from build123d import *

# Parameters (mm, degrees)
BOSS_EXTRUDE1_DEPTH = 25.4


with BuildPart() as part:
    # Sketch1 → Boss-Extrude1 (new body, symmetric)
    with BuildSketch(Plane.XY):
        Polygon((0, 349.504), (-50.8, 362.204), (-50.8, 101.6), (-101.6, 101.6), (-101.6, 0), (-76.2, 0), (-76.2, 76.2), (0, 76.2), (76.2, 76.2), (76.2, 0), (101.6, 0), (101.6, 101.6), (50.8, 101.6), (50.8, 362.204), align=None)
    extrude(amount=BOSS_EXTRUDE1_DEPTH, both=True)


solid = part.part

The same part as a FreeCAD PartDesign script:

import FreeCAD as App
import Part
import Sketcher
Q = App.Units.Quantity

doc = App.newDocument("Part")
body = doc.addObject("PartDesign::Body", "Body")

# Sketch on XY plane
sketch1 = body.newObject("Sketcher::SketchObject", "Sketch")
sketch1.AttachmentSupport = (doc.getObject("XY_Plane"), [""])
sketch1.MapMode = "FlatFace"
sketch1.addGeometry([
    Part.LineSegment(App.Vector(0, 350, 0), App.Vector(-51, 362, 0)),  # 0
    Part.LineSegment(App.Vector(-51, 362, 0), App.Vector(-51, 102, 0)),  # 1
    Part.LineSegment(App.Vector(-51, 102, 0), App.Vector(-102, 102, 0)),  # 2
    Part.LineSegment(App.Vector(-102, 102, 0), App.Vector(-102, 0, 0)),  # 3
    Part.LineSegment(App.Vector(-102, 0, 0), App.Vector(-76, 0, 0)),  # 4
    Part.LineSegment(App.Vector(-76, 0, 0), App.Vector(-76, 76, 0)),  # 5
    Part.LineSegment(App.Vector(-76, 76, 0), App.Vector(76, 76, 0)),  # 6
    Part.LineSegment(App.Vector(76, 76, 0), App.Vector(76, 0, 0)),  # 7
    Part.LineSegment(App.Vector(76, 0, 0), App.Vector(102, 0, 0)),  # 8
    Part.LineSegment(App.Vector(102, 0, 0), App.Vector(102, 102, 0)),  # 9
    Part.LineSegment(App.Vector(102, 102, 0), App.Vector(51, 102, 0)),  # 10
    Part.LineSegment(App.Vector(51, 102, 0), App.Vector(51, 362, 0)),  # 11
    Part.LineSegment(App.Vector(51, 362, 0), App.Vector(0, 350, 0)),  # 12
], False)
sketch1.addConstraint([
    Sketcher.Constraint("Coincident", 0, 2, 1, 1),
    Sketcher.Constraint("Coincident", 1, 2, 2, 1),
    Sketcher.Constraint("Coincident", 2, 2, 3, 1),
    Sketcher.Constraint("Coincident", 3, 2, 4, 1),
    Sketcher.Constraint("Coincident", 4, 2, 5, 1),
    Sketcher.Constraint("Coincident", 5, 2, 6, 1),
    Sketcher.Constraint("Coincident", 6, 2, 7, 1),
    Sketcher.Constraint("Coincident", 7, 2, 8, 1),
    Sketcher.Constraint("Coincident", 8, 2, 9, 1),
    Sketcher.Constraint("Coincident", 9, 2, 10, 1),
    Sketcher.Constraint("Coincident", 10, 2, 11, 1),
    Sketcher.Constraint("Coincident", 11, 2, 12, 1),
    Sketcher.Constraint("Coincident", 12, 2, 0, 1),
    Sketcher.Constraint("Vertical", 1),
    Sketcher.Constraint("Horizontal", 2),
    Sketcher.Constraint("Vertical", 3),
    Sketcher.Constraint("Horizontal", 4),
    Sketcher.Constraint("Vertical", 5),
    Sketcher.Constraint("Horizontal", 6),
    Sketcher.Constraint("Vertical", 7),
    Sketcher.Constraint("Horizontal", 8),
    Sketcher.Constraint("Vertical", 9),
    Sketcher.Constraint("Horizontal", 10),
    Sketcher.Constraint("Vertical", 11),
    Sketcher.Constraint("Symmetric", 4, 2, 7, 2, -1, 1),
    Sketcher.Constraint("Symmetric", 3, 2, 8, 2, -2),
    Sketcher.Constraint("Symmetric", 1, 2, 10, 2, -2),
    Sketcher.Constraint("PointOnObject", 12, 2, -2),
    Sketcher.Constraint("Horizontal", 0, 2, 11, 2),
    Sketcher.Constraint("DistanceX", 2, 2, 2, 1, Q("2 in")),
    Sketcher.Constraint("DistanceX", 4, 1, 4, 2, Q("1 in")),
    Sketcher.Constraint("DistanceX", 6, 1, 6, 2, Q("6 in")),
    Sketcher.Constraint("DistanceY", 3, 2, 3, 1, Q("4 in")),
    Sketcher.Constraint("DistanceY", 5, 1, 5, 2, Q("3 in")),
    Sketcher.Constraint("DistanceY", 1, 2, 1, 1, Q("10.26 in")),
    Sketcher.Constraint("DistanceY", 12, 2, 0, 2, Q("0.5 in")),
])
pad1 = body.newObject("PartDesign::Pad", "Pad")
pad1.Profile = sketch1
pad1.Length = Q("2 in")
pad1.Midplane = True

doc.recompute()
